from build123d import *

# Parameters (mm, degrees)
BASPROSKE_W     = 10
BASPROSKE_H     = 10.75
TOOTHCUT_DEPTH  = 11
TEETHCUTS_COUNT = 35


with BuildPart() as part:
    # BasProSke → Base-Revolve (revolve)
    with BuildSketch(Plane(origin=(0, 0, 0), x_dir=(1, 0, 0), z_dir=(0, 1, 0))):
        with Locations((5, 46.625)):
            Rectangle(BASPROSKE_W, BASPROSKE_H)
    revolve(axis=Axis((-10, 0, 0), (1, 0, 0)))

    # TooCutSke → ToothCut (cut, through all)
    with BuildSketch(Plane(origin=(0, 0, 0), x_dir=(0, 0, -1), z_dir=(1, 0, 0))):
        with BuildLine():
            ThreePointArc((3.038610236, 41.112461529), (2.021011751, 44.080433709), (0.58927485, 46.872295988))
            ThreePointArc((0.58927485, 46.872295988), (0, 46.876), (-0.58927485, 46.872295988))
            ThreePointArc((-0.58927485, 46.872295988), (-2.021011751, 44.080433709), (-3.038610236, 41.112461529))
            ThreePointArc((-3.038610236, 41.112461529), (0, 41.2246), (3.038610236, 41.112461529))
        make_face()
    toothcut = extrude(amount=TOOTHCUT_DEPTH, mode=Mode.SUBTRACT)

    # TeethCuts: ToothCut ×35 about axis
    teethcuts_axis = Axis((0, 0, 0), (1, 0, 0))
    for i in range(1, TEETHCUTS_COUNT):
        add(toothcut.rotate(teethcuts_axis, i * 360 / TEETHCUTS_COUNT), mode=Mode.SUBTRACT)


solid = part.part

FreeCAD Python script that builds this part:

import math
import FreeCAD as App
import Part
import Sketcher

V = App.Vector
Q = App.Units.Quantity

doc = App.newDocument("Part")
body = doc.addObject("PartDesign::Body", "Body")

sketch1 = body.newObject("Sketcher::SketchObject", "Sketch")
sketch1.AttachmentSupport = (doc.getObject("XZ_Plane"), [""])
sketch1.MapMode = "FlatFace"
sketch1.addGeometry([
    Part.LineSegment(V(0, -52, 0), V(0, -41, 0)),
    Part.LineSegment(V(0, -41, 0), V(10, -41, 0)),
    Part.LineSegment(V(10, -41, 0), V(10, -52, 0)),
    Part.LineSegment(V(10, -52, 0), V(0, -52, 0)),
], False)
sketch1.addConstraint([
    Sketcher.Constraint("Coincident", 0, 2, 1, 1),
    Sketcher.Constraint("Coincident", 1, 2, 2, 1),
    Sketcher.Constraint("Coincident", 2, 2, 3, 1),
    Sketcher.Constraint("Coincident", 3, 2, 0, 1),
    Sketcher.Constraint("Vertical", 0),
    Sketcher.Constraint("Horizontal", 1),
    Sketcher.Constraint("Vertical", 2),
    Sketcher.Constraint("Horizontal", 3),
    Sketcher.Constraint("PointOnObject", 0, 2, -2),
    Sketcher.Constraint("DistanceX", 1, 1, 1, 2, Q("10 mm")),
    Sketcher.Constraint("DistanceY", 2, 2, -1, 1, Q("52 mm")),
    Sketcher.Constraint("DistanceY", 0, 1, 0, 2, Q("10.75 mm")),
])
revolution = body.newObject("PartDesign::Revolution", "Revolution")
revolution.Profile = sketch1
revolution.ReferenceAxis = (sketch1, ["H_Axis"])
revolution.Angle = 360

sketch2 = body.newObject("Sketcher::SketchObject", "Sketch001")
sketch2.AttachmentSupport = (doc.getObject("YZ_Plane"), [""])
sketch2.MapMode = "FlatFace"
sketch2.addGeometry([
    Part.ArcOfCircle(Part.Circle(V(35.5, 18.1, 0), V(0, 0, 1), 21.9), math.radians(-75.19), math.radians(-58.74)),
    Part.ArcOfCircle(Part.Circle(V(0, 0, 0), V(0, 0, 1), 46.9), math.radians(-0.72), math.radians(0.72)),
    Part.ArcOfCircle(Part.Circle(V(35.5, -18.1, 0), V(0, 0, 1), 21.9), math.radians(58.74), math.radians(75.19)),
    Part.ArcOfCircle(Part.Circle(V(0, 0, 0), V(0, 0, 1), 41.2), math.radians(-4.23), math.radians(4.23)),
], False)
sketch2.addConstraint([
    Sketcher.Constraint("Coincident", 0, 2, 1, 1),
    Sketcher.Constraint("Coincident", 1, 2, 2, 1),
    Sketcher.Constraint("Coincident", 2, 2, 3, 2),
    Sketcher.Constraint("Coincident", 3, 1, 0, 1),
    Sketcher.Constraint("Coincident", 1, 3, -1, 1),
    Sketcher.Constraint("Coincident", 3, 3, -1, 1),
    Sketcher.Constraint("Equal", 0, 2),
    Sketcher.Constraint("Symmetric", 0, 3, 2, 3, -1),
    Sketcher.Constraint("Radius", 0, Q("21.875 mm")),
    Sketcher.Constraint("Radius", 3, Q("41.2246 mm")),
    Sketcher.Constraint("Radius", 1, Q("46.876005 mm")),
    Sketcher.Constraint("DistanceX", 1, 3, 1, 2, Q("46.872301 mm")),
    Sketcher.Constraint("DistanceX", -1, 1, 0, 3, Q("35.520071 mm")),
])
pocket1 = body.newObject("PartDesign::Pocket", "Pocket")
pocket1.Profile = sketch2
pocket1.Type = "ThroughAll"
pocket1.Reversed = True
doc.recompute()

polarpattern = body.newObject("PartDesign::PolarPattern", "PolarPattern")
polarpattern.Originals = [pocket1]
polarpattern.Axis = (doc.getObject("X_Axis"), [""])
polarpattern.Angle = 360
polarpattern.Occurrences = 35
body.Tip = polarpattern

doc.recompute()
